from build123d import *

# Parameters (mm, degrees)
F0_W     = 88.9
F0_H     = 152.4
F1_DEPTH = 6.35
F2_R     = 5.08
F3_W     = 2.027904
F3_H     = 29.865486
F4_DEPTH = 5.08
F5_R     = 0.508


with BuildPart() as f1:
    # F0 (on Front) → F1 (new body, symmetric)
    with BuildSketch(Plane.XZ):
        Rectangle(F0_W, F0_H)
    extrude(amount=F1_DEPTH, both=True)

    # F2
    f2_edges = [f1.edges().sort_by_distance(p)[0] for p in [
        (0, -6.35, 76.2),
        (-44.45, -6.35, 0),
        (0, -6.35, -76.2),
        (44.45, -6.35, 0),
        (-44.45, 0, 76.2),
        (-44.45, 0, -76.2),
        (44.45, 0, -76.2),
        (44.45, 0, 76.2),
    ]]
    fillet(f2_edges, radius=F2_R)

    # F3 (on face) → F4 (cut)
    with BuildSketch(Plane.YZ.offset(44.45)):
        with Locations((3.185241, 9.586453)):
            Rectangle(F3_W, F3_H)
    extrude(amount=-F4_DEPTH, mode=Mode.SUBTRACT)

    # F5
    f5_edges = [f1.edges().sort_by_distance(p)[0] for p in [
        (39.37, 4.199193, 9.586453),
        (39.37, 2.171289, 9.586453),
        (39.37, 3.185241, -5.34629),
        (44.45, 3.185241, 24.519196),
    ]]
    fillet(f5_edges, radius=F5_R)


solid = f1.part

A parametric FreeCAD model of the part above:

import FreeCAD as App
import Part
import Sketcher
Q = App.Units.Quantity


def edges_at(feature, points):
    """Names of the edges that pass closest to the given points."""
    edges = feature.Shape.Edges
    near = lambda p: min(range(len(edges)), key=lambda i: edges[i].distToShape(Part.Vertex(*p))[0])
    return sorted({f"Edge{near(p) + 1}" for p in points})

doc = App.newDocument("Part")
body = doc.addObject("PartDesign::Body", "Body")

sketch1 = body.newObject("Sketcher::SketchObject", "Sketch")
sketch1.AttachmentSupport = (doc.getObject("XZ_Plane"), [""])
sketch1.MapMode = "FlatFace"
sketch1.addGeometry([
    Part.LineSegment(App.Vector(-44, 76, 0), App.Vector(-44, -76, 0)),
    Part.LineSegment(App.Vector(-44, -76, 0), App.Vector(44, -76, 0)),
    Part.LineSegment(App.Vector(44, -76, 0), App.Vector(44, 76, 0)),
    Part.LineSegment(App.Vector(44, 76, 0), App.Vector(-44, 76, 0)),
], False)
sketch1.addConstraint([
    Sketcher.Constraint("Coincident", 0, 2, 1, 1),
    Sketcher.Constraint("Coincident", 1, 2, 2, 1),
    Sketcher.Constraint("Coincident", 2, 2, 3, 1),
    Sketcher.Constraint("Coincident", 3, 2, 0, 1),
    Sketcher.Constraint("Vertical", 0),
    Sketcher.Constraint("Horizontal", 1),
    Sketcher.Constraint("Vertical", 2),
    Sketcher.Constraint("Horizontal", 3),
    Sketcher.Constraint("Symmetric", 0, 2, 2, 2, -1, 1),
    Sketcher.Constraint("DistanceY", 0, 2, 0, 1, Q("6 in")),
    Sketcher.Constraint("DistanceX", 1, 1, 1, 2, Q("3.5 in")),
])
pad1 = body.newObject("PartDesign::Pad", "Pad")
pad1.Profile = sketch1
pad1.Length = Q("0.5 in")
pad1.Midplane = True
doc.recompute()

fillet = body.newObject("PartDesign::Fillet", "Fillet")
fillet.Base = (pad1, edges_at(pad1, [
    (0, -6.35, 76.2),
    (-44.45, -6.35, 0),
    (0, -6.35, -76.2),
    (44.45, -6.35, 0),
    (-44.45, 0, 76.2),
    (-44.45, 0, -76.2),
    (44.45, 0, -76.2),
    (44.45, 0, 76.2),
]))
fillet.Radius = Q("0.2 in")

sketch2 = body.newObject("Sketcher::SketchObject", "Sketch001")
sketch2.AttachmentSupport = (doc.getObject("YZ_Plane"), [""])
sketch2.MapMode = "FlatFace"
sketch2.AttachmentOffset = App.Placement(App.Vector(0, 0, 1.75 * 25.4), App.Rotation())
sketch2.addGeometry([
    Part.LineSegment(App.Vector(2.2, 24.5, 0), App.Vector(2.2, -5.3, 0)),
    Part.LineSegment(App.Vector(2.2, -5.3, 0), App.Vector(4.2, -5.3, 0)),
    Part.LineSegment(App.Vector(4.2, -5.3, 0), App.Vector(4.2, 24.5, 0)),
    Part.LineSegment(App.Vector(4.2, 24.5, 0), App.Vector(2.2, 24.5, 0)),
], False)
sketch2.addConstraint([
    Sketcher.Constraint("Coincident", 0, 2, 1, 1),
    Sketcher.Constraint("Coincident", 1, 2, 2, 1),
    Sketcher.Constraint("Coincident", 2, 2, 3, 1),
    Sketcher.Constraint("Coincident", 3, 2, 0, 1),
    Sketcher.Constraint("Vertical", 0),
    Sketcher.Constraint("Horizontal", 1),
    Sketcher.Constraint("Vertical", 2),
    Sketcher.Constraint("Horizontal", 3),
    Sketcher.Constraint("DistanceX", 1, 1, 1, 2, 2.027904),
    Sketcher.Constraint("DistanceY", 0, 2, 0, 1, 29.865486),
    Sketcher.Constraint("DistanceX", -1, 1, 0, 2, 2.171289),
    Sketcher.Constraint("DistanceY", 0, 2, -1, 1, 5.34629),
])
pocket1 = body.newObject("PartDesign::Pocket", "Pocket")
pocket1.Profile = sketch2
pocket1.Length = Q("0.2 in")
doc.recompute()

fillet2 = body.newObject("PartDesign::Fillet", "Fillet001")
fillet2.Base = (pocket1, edges_at(pocket1, [
    (39.37, 4.199, 9.586),
    (39.37, 2.171, 9.586),
    (39.37, 3.185, -5.346),
    (44.45, 3.185, 24.519),
]))
fillet2.Radius = Q("0.02 in")

doc.recompute()
